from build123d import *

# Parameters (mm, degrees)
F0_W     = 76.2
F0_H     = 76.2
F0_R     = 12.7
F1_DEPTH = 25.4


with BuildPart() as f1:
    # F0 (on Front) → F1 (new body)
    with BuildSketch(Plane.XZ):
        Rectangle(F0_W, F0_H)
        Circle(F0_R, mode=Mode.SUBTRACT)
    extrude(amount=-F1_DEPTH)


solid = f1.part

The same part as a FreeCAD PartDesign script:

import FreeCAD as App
import Part
import Sketcher

V = App.Vector
Q = App.Units.Quantity

doc = App.newDocument("Part")
body = doc.addObject("PartDesign::Body", "Body")

# Sketch on XZ plane
sketch1 = doc.addObject("Sketcher::SketchObject", "Sketch")
body.addObject(sketch1)
sketch1.AttachmentSupport = (doc.XZ_Plane, [""])
sketch1.MapMode = "FlatFace"
sketch1.addGeometry([
    Part.LineSegment(V(-38, 38, 0), V(-38, -38, 0)),  # 0
    Part.LineSegment(V(-38, -38, 0), V(38, -38, 0)),  # 1
    Part.LineSegment(V(38, -38, 0), V(38, 38, 0)),  # 2
    Part.LineSegment(V(38, 38, 0), V(-38, 38, 0)),  # 3
    Part.Circle(V(0, 0, 0), V(0, 0, 1), 13),  # 4
], False)
sketch1.addConstraint([
    Sketcher.Constraint("Coincident", 0, 2, 1, 1),
    Sketcher.Constraint("Coincident", 1, 2, 2, 1),
    Sketcher.Constraint("Coincident", 2, 2, 3, 1),
    Sketcher.Constraint("Coincident", 3, 2, 0, 1),
    Sketcher.Constraint("Vertical", 0),
    Sketcher.Constraint("Horizontal", 1),
    Sketcher.Constraint("Vertical", 2),
    Sketcher.Constraint("Horizontal", 3),
    Sketcher.Constraint("Coincident", 4, 3, -1, 1),
    Sketcher.Constraint("Symmetric", 0, 2, 2, 2, -1, 1),
    Sketcher.Constraint("Equal", 3, 0),
    Sketcher.Constraint("Diameter", 4, Q("1 in")),
    Sketcher.Constraint("DistanceX", 1, 1, 1, 2, Q("3 in")),
])
pad1 = doc.addObject("PartDesign::Pad", "Pad")
body.addObject(pad1)
pad1.Profile = sketch1
pad1.Length = Q("1 in")
pad1.Reversed = True

doc.recompute()
